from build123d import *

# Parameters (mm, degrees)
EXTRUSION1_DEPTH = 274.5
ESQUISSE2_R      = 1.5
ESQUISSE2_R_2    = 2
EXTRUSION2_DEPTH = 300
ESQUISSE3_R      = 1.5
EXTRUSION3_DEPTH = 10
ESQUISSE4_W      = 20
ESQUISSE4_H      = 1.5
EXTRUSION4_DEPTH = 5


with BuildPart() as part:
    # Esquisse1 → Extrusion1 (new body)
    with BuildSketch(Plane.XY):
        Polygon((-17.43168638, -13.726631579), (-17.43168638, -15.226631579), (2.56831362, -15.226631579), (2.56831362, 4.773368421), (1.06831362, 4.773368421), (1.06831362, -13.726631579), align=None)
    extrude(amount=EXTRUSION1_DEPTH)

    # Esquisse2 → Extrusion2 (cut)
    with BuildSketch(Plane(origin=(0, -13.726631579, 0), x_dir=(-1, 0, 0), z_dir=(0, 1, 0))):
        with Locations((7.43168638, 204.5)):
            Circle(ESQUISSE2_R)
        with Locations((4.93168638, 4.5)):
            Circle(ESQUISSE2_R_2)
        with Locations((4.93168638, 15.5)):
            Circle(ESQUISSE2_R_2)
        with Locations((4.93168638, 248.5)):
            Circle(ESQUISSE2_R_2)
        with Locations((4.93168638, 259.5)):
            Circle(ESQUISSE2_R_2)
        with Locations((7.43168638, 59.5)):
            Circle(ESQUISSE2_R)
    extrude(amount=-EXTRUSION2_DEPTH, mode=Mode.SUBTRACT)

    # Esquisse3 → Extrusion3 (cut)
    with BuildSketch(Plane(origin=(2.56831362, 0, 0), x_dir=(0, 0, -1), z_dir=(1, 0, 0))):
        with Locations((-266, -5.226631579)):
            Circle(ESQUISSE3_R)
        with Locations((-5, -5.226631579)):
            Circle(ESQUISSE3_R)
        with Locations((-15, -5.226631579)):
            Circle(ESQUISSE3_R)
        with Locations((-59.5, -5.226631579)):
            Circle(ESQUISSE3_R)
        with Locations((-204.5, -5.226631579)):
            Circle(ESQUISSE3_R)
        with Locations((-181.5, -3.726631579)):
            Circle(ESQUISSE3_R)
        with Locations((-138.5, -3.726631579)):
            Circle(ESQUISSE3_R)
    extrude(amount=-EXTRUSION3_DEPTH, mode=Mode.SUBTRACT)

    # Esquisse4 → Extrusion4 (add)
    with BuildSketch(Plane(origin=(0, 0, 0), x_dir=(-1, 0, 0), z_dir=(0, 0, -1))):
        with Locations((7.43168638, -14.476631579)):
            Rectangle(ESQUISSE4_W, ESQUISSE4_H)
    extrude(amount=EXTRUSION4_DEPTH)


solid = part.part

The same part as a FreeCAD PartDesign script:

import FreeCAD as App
import Part
import Sketcher
from FreeCAD import Vector


def add_polygon(sketch, points):
    """Adds a closed chain of lines whose ends are joined by coincident constraints."""
    first, n = sketch.GeometryCount, len(points)
    for a, b in zip(points, points[1:] + points[:1]):
        sketch.addGeometry(Part.LineSegment(App.Vector(*a, 0), App.Vector(*b, 0)), False)
    for i in range(n):
        sketch.addConstraint(Sketcher.Constraint("Coincident", first + i, 2, first + (i + 1) % n, 1))

doc = App.newDocument("Part")
body = doc.addObject("PartDesign::Body", "Body")

# Sketch on XY plane
sketch1 = body.newObject("Sketcher::SketchObject", "Sketch")
sketch1.AttachmentSupport = (doc.getObject("XY_Plane"), [""])
sketch1.MapMode = "FlatFace"
add_polygon(sketch1, [(-17.4, -13.7), (-17.4, -15.2), (2.6, -15.2), (2.6, 4.8), (1.1, 4.8), (1.1, -13.7)])  # lines 0-5
sketch1.addConstraint([
    Sketcher.Constraint("Vertical", 0),
    Sketcher.Constraint("Horizontal", 1),
    Sketcher.Constraint("Vertical", 2),
    Sketcher.Constraint("Horizontal", 3),
    Sketcher.Constraint("Vertical", 4),
    Sketcher.Constraint("Horizontal", 5),
    Sketcher.Constraint("Equal", 3, 0),
    Sketcher.Constraint("Equal", 1, 2),
    Sketcher.Constraint("DistanceX", 1, 1, 1, 2, 20.0),
    Sketcher.Constraint("DistanceX", 3, 2, 3, 1, 1.5),
    Sketcher.Constraint("DistanceY", 0, 2, -1, 1, 15.226632),
    Sketcher.Constraint("DistanceX", 0, 2, -1, 1, 17.431686),
])
pad1 = body.newObject("PartDesign::Pad", "Pad")
pad1.Profile = sketch1
pad1.Length = 274.5

# Sketch on XZ plane
sketch2 = body.newObject("Sketcher::SketchObject", "Sketch001")
sketch2.AttachmentSupport = (doc.getObject("XZ_Plane"), [""])
sketch2.MapMode = "FlatFace"
sketch2.AttachmentOffset = App.Placement(Vector(0, 0, 13.726632), App.Rotation())
sketch2.addGeometry([
    Part.Circle(Vector(-7.4, 204.5, 0), Vector(0, 0, 1), 1.5),  # 0
    Part.Circle(Vector(-4.9, 4.5, 0), Vector(0, 0, 1), 2),  # 1
    Part.Circle(Vector(-4.9, 15.5, 0), Vector(0, 0, 1), 2),  # 2
    Part.Circle(Vector(-4.9, 248.5, 0), Vector(0, 0, 1), 2),  # 3
    Part.Circle(Vector(-4.9, 259.5, 0), Vector(0, 0, 1), 2),  # 4
    Part.Circle(Vector(-7.4, 59.5, 0), Vector(0, 0, 1), 1.5),  # 5
], False)
sketch2.addConstraint([
    Sketcher.Constraint("Equal", 1, 2),
    Sketcher.Constraint("Equal", 2, 3),
    Sketcher.Constraint("Equal", 3, 4),
    Sketcher.Constraint("Equal", 0, 5),
    Sketcher.Constraint("Vertical", 1, 3, 2, 3),
    Sketcher.Constraint("Vertical", 2, 3, 3, 3),
    Sketcher.Constraint("Vertical", 3, 3, 4, 3),
    Sketcher.Constraint("Vertical", 0, 3, 5, 3),
    Sketcher.Constraint("Diameter", 0, 3.0),
    Sketcher.Constraint("Diameter", 1, 4.0),
    Sketcher.Constraint("DistanceY", 1, 3, 0, 3, 200.0),
    Sketcher.Constraint("DistanceY", 1, 3, 2, 3, 11.0),
    Sketcher.Constraint("DistanceY", 0, 3, 3, 3, 44.0),
    Sketcher.Constraint("DistanceY", 3, 3, 4, 3, 11.0),
    Sketcher.Constraint("DistanceY", 2, 3, 5, 3, 44.0),
    Sketcher.Constraint("DistanceY", -1, 1, 0, 3, 204.5),
    Sketcher.Constraint("DistanceX", 0, 3, 1, 3, 2.5),
    Sketcher.Constraint("DistanceX", 0, 3, -1, 1, 7.431686),
])
pocket1 = body.newObject("PartDesign::Pocket", "Pocket")
pocket1.Profile = sketch2
pocket1.Length = 300
pocket1.Reversed = True

# Sketch on YZ plane
sketch3 = body.newObject("Sketcher::SketchObject", "Sketch002")
sketch3.AttachmentSupport = (doc.getObject("YZ_Plane"), [""])
sketch3.MapMode = "FlatFace"
sketch3.AttachmentOffset = App.Placement(Vector(0, 0, 2.568314), App.Rotation())
sketch3.addGeometry([
    Part.Circle(Vector(-5.2, 266, 0), Vector(0, 0, 1), 1.5),  # 0
    Part.Circle(Vector(-5.2, 5, 0), Vector(0, 0, 1), 1.5),  # 1
    Part.Circle(Vector(-5.2, 15, 0), Vector(0, 0, 1), 1.5),  # 2
    Part.Circle(Vector(-5.2, 59.5, 0), Vector(0, 0, 1), 1.5),  # 3
    Part.Circle(Vector(-5.2, 204.5, 0), Vector(0, 0, 1), 1.5),  # 4
    Part.Circle(Vector(-3.7, 181.5, 0), Vector(0, 0, 1), 1.5),  # 5
    Part.Circle(Vector(-3.7, 138.5, 0), Vector(0, 0, 1), 1.5),  # 6
], False)
sketch3.addConstraint([
    Sketcher.Constraint("Equal", 0, 1),
    Sketcher.Constraint("Equal", 1, 2),
    Sketcher.Constraint("Equal", 2, 3),
    Sketcher.Constraint("Equal", 3, 4),
    Sketcher.Constraint("Equal", 4, 5),
    Sketcher.Constraint("Equal", 5, 6),
    Sketcher.Constraint("Vertical", 0, 3, 1, 3),
    Sketcher.Constraint("Vertical", 1, 3, 2, 3),
    Sketcher.Constraint("Vertical", 2, 3, 3, 3),
    Sketcher.Constraint("Vertical", 3, 3, 4, 3),
    Sketcher.Constraint("Vertical", 5, 3, 6, 3),
    Sketcher.Constraint("Diameter", 0, 3.0),
    Sketcher.Constraint("DistanceY", -1, 1, 0, 3, 266.0),
    Sketcher.Constraint("DistanceY", -1, 1, 1, 3, 5.0),
    Sketcher.Constraint("DistanceY", -1, 1, 2, 3, 15.0),
    Sketcher.Constraint("DistanceY", 3, 3, 4, 3, 145.0),
    Sketcher.Constraint("DistanceY", 5, 3, 4, 3, 23.0),
    Sketcher.Constraint("DistanceY", 6, 3, 5, 3, 43.0),
    Sketcher.Constraint("DistanceY", -1, 1, 3, 3, 59.5),
    Sketcher.Constraint("DistanceX", 4, 3, 5, 3, 1.5),
    Sketcher.Constraint("DistanceX", 0, 3, -1, 1, 5.226632),
])
pocket2 = body.newObject("PartDesign::Pocket", "Pocket001")
pocket2.Profile = sketch3
pocket2.Length = 10

# Sketch on XY plane
sketch4 = body.newObject("Sketcher::SketchObject", "Sketch003")
sketch4.AttachmentSupport = (doc.getObject("XY_Plane"), [""])
sketch4.MapMode = "FlatFace"
add_polygon(sketch4, [(2.6, -13.7), (2.6, -15.2), (-17.4, -15.2), (-17.4, -13.7)])  # lines 0-3
sketch4.addConstraint([
    Sketcher.Constraint("Vertical", 0),
    Sketcher.Constraint("Horizontal", 1),
    Sketcher.Constraint("Vertical", 2),
    Sketcher.Constraint("Horizontal", 3),
    Sketcher.Constraint("DistanceX", 1, 2, 1, 1, 20.0),
    Sketcher.Constraint("DistanceY", 0, 2, 0, 1, 1.5),
    Sketcher.Constraint("DistanceY", 0, 2, -1, 1, 15.226632),
    Sketcher.Constraint("DistanceX", -1, 1, 0, 2, 2.568314),
])
pad2 = body.newObject("PartDesign::Pad", "Pad001")
pad2.Profile = sketch4
pad2.Length = 5
pad2.Reversed = True

doc.recompute()
